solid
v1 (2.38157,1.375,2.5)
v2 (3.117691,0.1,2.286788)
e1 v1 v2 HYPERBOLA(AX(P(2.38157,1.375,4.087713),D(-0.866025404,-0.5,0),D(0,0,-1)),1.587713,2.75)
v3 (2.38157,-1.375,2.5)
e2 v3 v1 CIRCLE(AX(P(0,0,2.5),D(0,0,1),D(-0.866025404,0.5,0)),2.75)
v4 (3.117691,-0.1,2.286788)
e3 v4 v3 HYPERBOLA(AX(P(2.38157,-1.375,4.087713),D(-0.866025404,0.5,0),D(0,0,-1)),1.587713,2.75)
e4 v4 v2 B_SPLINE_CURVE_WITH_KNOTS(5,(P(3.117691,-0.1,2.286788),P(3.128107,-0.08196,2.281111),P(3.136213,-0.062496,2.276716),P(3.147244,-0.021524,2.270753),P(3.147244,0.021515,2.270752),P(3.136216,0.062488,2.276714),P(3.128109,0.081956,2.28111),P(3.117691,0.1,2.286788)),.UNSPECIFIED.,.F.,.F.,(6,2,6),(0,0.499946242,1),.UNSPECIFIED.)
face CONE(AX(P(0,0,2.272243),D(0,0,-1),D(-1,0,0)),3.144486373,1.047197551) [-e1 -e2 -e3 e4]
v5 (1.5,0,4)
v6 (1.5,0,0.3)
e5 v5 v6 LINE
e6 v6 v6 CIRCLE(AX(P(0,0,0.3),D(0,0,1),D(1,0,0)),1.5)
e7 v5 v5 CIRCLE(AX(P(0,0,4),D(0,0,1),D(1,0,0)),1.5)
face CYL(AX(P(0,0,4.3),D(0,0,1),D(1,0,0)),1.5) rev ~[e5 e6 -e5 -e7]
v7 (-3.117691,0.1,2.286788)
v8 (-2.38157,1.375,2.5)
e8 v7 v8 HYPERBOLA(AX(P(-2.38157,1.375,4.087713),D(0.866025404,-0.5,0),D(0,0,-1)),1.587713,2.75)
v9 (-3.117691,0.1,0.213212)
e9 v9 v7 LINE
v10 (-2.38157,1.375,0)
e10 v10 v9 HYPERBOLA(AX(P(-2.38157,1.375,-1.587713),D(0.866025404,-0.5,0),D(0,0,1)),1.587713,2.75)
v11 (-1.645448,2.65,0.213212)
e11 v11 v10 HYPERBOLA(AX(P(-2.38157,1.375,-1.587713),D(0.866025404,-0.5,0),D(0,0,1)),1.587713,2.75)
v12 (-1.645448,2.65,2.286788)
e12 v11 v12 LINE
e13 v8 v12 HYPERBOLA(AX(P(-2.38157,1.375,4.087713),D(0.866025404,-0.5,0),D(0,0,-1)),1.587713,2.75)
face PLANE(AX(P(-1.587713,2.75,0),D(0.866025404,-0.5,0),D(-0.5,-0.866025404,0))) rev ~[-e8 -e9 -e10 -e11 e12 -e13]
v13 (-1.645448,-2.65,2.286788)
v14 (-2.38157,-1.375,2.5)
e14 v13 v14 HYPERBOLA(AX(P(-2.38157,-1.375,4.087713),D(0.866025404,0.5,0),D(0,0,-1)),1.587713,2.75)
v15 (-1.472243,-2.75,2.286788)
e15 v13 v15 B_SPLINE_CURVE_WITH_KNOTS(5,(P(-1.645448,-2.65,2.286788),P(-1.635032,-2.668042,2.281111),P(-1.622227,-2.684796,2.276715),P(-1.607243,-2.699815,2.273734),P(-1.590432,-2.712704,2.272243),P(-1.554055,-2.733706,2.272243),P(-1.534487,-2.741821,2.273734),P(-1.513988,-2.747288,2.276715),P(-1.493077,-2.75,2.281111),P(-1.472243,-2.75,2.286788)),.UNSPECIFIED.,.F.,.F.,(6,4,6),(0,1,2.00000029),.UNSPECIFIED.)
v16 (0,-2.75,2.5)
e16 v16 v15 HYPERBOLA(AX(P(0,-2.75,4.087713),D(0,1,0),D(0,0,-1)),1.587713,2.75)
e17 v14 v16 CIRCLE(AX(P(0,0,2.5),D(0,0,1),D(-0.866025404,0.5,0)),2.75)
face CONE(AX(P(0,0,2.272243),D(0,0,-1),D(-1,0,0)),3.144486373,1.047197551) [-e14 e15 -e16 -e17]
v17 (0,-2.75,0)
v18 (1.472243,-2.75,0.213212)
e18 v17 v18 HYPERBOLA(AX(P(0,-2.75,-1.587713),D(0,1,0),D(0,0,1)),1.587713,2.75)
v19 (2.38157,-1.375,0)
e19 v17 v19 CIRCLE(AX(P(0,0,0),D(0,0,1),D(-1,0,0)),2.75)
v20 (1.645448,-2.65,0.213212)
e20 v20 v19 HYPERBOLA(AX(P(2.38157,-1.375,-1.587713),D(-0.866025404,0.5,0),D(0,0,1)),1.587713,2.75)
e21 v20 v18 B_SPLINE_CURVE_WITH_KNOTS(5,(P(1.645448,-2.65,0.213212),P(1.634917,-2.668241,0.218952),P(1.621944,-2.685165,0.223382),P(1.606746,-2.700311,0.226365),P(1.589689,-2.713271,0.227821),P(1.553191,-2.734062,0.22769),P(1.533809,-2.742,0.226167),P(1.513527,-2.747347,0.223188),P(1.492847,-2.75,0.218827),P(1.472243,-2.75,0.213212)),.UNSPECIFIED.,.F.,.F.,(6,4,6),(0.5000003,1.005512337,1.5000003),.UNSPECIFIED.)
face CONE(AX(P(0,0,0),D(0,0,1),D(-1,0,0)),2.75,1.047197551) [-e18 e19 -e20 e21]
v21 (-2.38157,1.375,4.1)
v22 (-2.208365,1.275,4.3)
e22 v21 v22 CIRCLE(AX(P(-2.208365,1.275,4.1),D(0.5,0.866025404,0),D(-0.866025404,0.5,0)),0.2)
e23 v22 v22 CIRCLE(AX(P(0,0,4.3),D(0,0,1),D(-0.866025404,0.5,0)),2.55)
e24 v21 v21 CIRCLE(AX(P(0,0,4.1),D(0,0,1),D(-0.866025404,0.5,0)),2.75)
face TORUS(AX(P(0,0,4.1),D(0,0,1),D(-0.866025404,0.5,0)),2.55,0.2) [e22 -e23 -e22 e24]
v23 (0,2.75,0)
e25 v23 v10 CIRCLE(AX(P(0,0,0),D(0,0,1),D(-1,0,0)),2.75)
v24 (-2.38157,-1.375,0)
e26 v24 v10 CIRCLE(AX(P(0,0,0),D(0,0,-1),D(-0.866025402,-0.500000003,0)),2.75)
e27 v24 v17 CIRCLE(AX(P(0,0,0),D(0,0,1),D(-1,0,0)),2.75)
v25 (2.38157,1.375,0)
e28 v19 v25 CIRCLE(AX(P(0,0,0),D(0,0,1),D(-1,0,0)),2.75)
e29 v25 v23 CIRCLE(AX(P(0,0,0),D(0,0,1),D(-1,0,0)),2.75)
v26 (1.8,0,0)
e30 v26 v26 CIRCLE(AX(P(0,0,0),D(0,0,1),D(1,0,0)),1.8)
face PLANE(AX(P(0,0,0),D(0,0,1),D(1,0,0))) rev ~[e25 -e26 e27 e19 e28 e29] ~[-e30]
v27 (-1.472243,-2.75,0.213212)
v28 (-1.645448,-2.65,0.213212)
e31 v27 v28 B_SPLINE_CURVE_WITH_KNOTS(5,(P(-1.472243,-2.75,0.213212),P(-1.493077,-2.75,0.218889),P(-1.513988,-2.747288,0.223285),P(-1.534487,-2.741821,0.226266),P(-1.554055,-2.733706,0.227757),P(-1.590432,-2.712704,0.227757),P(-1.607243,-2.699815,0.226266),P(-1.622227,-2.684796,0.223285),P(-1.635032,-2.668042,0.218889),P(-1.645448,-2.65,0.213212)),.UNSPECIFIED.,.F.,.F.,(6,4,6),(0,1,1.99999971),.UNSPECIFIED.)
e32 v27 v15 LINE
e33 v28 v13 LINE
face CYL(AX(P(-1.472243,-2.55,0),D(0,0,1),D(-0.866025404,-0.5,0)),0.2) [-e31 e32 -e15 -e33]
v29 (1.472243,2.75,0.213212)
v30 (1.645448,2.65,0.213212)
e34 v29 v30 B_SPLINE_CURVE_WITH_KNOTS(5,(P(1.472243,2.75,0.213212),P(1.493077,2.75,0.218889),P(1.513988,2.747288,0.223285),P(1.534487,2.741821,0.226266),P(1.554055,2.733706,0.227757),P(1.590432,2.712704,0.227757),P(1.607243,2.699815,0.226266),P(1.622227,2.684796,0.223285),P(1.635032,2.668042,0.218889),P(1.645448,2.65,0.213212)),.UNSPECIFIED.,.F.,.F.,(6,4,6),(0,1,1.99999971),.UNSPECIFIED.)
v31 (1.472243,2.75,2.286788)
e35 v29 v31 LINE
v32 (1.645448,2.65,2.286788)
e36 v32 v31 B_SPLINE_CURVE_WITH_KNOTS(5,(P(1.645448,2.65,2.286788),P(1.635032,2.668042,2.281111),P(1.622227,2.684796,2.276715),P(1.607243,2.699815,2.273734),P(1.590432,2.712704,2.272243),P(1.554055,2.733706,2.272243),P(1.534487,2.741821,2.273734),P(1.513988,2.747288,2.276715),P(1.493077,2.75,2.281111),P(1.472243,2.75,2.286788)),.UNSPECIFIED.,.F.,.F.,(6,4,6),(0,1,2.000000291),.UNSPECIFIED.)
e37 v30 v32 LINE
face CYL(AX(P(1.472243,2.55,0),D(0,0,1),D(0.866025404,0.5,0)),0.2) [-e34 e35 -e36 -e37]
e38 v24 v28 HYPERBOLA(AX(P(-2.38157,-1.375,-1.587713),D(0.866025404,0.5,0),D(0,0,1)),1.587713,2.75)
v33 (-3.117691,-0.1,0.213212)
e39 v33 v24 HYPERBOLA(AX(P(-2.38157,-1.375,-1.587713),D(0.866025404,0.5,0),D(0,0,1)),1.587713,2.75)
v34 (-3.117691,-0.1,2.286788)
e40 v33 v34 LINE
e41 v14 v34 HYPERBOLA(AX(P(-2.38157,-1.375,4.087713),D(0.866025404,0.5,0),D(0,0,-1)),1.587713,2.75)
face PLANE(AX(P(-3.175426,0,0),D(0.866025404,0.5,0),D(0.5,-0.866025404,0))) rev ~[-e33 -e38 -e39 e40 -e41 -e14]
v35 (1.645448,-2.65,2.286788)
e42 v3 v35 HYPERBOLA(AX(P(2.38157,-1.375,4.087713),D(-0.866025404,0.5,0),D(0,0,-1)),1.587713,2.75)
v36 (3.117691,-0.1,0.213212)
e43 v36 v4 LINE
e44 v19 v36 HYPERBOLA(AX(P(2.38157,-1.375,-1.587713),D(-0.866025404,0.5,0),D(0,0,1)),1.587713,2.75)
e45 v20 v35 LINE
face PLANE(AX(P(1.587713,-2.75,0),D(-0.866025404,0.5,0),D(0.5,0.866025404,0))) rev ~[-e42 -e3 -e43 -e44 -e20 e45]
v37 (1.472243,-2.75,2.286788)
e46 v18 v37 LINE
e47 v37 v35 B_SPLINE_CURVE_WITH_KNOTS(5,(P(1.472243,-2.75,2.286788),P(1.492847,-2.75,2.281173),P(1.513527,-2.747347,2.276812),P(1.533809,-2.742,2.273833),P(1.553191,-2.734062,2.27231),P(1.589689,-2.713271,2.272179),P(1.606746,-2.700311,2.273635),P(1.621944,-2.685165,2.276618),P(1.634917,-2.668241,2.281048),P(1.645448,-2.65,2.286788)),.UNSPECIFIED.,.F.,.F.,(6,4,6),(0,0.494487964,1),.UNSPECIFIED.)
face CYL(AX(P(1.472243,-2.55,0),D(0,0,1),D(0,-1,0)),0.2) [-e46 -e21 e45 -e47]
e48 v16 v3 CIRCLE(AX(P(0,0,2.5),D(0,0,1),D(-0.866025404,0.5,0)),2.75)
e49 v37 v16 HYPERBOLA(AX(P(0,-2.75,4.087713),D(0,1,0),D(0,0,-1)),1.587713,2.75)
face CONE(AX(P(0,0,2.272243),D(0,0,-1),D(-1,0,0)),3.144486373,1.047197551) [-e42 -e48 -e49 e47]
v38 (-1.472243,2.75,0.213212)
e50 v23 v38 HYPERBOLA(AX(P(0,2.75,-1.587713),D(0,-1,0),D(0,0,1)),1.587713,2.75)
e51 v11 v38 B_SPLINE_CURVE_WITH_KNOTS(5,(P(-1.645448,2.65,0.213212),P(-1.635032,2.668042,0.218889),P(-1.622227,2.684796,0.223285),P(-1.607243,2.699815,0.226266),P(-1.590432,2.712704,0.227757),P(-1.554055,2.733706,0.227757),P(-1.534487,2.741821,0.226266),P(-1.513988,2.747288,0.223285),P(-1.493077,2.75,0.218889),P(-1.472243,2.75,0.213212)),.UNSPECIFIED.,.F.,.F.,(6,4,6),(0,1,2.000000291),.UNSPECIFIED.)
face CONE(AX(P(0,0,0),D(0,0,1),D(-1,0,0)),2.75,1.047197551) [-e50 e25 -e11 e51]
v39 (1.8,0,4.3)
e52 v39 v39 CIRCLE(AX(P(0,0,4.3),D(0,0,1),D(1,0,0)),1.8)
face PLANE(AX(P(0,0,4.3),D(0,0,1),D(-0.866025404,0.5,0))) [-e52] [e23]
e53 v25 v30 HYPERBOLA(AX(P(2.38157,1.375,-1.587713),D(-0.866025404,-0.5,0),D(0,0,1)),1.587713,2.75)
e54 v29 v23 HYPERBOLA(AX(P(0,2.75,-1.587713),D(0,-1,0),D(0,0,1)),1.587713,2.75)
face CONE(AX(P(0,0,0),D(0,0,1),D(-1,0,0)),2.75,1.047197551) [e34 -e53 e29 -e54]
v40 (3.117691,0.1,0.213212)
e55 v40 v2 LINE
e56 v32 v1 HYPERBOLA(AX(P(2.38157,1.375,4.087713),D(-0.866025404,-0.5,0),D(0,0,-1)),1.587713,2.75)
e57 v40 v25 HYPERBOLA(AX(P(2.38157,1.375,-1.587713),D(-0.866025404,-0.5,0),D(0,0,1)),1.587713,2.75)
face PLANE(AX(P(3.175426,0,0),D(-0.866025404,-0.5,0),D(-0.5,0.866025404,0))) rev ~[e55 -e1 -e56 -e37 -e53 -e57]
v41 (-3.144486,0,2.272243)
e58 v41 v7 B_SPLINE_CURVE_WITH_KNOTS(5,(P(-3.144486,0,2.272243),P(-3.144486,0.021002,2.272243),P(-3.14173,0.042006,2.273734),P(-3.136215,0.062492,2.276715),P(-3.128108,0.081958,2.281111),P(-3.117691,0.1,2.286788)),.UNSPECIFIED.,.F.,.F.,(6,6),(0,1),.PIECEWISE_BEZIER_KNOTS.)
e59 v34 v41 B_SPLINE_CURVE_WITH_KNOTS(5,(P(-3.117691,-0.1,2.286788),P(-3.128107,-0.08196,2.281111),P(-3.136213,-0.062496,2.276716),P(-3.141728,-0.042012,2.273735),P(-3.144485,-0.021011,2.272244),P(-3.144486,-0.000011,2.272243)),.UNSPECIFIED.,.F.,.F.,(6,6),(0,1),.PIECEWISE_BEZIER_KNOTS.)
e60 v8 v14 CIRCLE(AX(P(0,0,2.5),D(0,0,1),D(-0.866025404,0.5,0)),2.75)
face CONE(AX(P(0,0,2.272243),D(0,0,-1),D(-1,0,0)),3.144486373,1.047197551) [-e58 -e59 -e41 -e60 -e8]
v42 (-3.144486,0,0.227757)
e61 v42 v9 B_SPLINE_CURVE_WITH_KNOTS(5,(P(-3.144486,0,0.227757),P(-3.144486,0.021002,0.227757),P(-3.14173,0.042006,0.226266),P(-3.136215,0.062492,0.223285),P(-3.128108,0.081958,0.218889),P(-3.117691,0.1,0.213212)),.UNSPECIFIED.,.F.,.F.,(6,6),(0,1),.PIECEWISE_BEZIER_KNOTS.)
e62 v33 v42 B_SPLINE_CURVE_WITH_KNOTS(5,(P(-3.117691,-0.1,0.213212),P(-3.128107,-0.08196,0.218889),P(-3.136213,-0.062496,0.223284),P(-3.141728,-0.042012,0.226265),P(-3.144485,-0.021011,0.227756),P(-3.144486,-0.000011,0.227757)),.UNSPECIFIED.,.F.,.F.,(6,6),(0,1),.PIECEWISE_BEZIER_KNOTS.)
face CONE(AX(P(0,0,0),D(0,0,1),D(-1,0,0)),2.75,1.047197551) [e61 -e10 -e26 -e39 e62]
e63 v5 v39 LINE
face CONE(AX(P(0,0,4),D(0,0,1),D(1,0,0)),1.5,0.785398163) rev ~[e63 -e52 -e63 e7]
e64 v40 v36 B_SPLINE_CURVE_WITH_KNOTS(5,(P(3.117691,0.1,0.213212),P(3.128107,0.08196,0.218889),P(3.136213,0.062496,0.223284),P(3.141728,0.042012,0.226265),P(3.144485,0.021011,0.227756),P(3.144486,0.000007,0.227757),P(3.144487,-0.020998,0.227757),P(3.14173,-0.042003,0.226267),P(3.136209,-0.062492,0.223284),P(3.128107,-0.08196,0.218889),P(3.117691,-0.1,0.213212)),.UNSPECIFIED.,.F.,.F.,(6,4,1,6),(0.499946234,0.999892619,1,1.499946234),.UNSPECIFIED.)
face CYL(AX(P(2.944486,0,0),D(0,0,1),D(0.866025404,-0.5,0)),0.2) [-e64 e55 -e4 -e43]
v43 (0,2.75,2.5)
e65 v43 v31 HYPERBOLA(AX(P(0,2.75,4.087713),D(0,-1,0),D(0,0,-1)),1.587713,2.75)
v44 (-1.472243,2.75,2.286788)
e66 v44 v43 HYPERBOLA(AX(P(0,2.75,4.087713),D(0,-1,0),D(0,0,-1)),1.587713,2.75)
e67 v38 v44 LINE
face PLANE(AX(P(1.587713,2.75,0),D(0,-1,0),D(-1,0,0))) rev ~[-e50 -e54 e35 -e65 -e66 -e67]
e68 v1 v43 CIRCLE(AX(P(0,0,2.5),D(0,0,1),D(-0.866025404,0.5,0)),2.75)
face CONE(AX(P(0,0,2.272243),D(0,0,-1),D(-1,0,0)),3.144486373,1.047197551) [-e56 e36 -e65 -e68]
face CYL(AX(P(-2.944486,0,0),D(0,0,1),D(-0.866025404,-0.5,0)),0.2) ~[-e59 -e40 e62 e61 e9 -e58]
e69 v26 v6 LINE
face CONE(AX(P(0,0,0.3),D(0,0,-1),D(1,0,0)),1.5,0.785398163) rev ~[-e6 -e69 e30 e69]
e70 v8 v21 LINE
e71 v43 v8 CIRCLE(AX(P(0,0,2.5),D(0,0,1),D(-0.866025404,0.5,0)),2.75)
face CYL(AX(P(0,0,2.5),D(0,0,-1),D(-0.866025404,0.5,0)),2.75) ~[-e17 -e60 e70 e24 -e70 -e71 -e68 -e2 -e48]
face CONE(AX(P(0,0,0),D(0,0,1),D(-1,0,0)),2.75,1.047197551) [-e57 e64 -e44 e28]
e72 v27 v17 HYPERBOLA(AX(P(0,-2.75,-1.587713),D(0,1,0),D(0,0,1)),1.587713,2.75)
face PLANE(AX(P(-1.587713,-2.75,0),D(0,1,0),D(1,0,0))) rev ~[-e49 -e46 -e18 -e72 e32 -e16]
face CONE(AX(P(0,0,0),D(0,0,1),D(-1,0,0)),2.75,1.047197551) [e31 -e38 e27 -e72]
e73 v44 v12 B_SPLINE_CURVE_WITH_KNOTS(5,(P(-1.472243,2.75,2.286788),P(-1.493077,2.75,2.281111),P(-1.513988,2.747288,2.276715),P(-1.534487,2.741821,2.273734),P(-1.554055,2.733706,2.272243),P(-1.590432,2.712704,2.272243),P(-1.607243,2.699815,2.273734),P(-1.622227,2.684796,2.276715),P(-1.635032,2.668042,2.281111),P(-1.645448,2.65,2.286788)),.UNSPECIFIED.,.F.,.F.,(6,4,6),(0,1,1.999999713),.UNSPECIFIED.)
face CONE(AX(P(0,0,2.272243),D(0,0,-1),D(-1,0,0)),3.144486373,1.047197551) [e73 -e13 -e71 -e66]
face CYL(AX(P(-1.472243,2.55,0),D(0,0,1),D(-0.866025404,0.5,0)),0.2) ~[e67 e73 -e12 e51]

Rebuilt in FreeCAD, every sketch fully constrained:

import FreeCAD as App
import Part
import Sketcher
from FreeCAD import Vector
Q = App.Units.Quantity


def edges_at(feature, points):
    """Names of the edges that pass closest to the given points."""
    edges = feature.Shape.Edges
    near = lambda p: min(range(len(edges)), key=lambda i: edges[i].distToShape(Part.Vertex(*p))[0])
    return sorted({f"Edge{near(p) + 1}" for p in points})

doc = App.newDocument("Part")
params = doc.addObject("Spreadsheet::Sheet", "Params")
for row, (alias, value) in enumerate([
    ("pad1_length", "2.5 mm"),
    ("sketch2_diameter", "5.5 mm"),
    ("pad2_length", "1.8 mm"),
    ("sketch3_diameter", "3 mm"),
    ("fillet_radius", "0.2 mm"),
    ("chamfer_size", "0.3 mm"),
    ("chamfer2_size", "0.3 mm"),
    ("groove_angle", "360 deg"),
    ("fillet2_radius", "0.2 mm"),
], start=1):
    params.set(f"A{row}", alias)
    params.set(f"B{row}", "=" + value)
    params.setAlias(f"B{row}", alias)

body = doc.addObject("PartDesign::Body", "Body")

sketch1 = body.newObject("Sketcher::SketchObject", "Sketch")
sketch1.AttachmentSupport = (doc.getObject("XY_Plane"), [""])
sketch1.MapMode = "FlatFace"
sketch1.addGeometry(Part.LineSegment(Vector(3.2, 0, 0), Vector(1.6, 2.8, 0)), False)
sketch1.addGeometry(Part.LineSegment(Vector(1.6, 2.8, 0), Vector(-1.6, 2.8, 0)), False)
sketch1.addGeometry(Part.LineSegment(Vector(-1.6, 2.8, 0), Vector(-3.2, 0, 0)), False)
sketch1.addGeometry(Part.LineSegment(Vector(-3.2, 0, 0), Vector(-1.6, -2.8, 0)), False)
sketch1.addGeometry(Part.LineSegment(Vector(-1.6, -2.8, 0), Vector(1.6, -2.8, 0)), False)
sketch1.addGeometry(Part.LineSegment(Vector(1.6, -2.8, 0), Vector(3.2, 0, 0)), False)
sketch1.addConstraint(Sketcher.Constraint("Coincident", 0, 2, 1, 1))
sketch1.addConstraint(Sketcher.Constraint("Coincident", 1, 2, 2, 1))
sketch1.addConstraint(Sketcher.Constraint("Coincident", 2, 2, 3, 1))
sketch1.addConstraint(Sketcher.Constraint("Coincident", 3, 2, 4, 1))
sketch1.addConstraint(Sketcher.Constraint("Coincident", 4, 2, 5, 1))
sketch1.addConstraint(Sketcher.Constraint("Coincident", 5, 2, 0, 1))
sketch1.addConstraint(Sketcher.Constraint("Horizontal", 1))
sketch1.addConstraint(Sketcher.Constraint("Horizontal", 4))
sketch1.addConstraint(Sketcher.Constraint("Symmetric", 0, 2, 3, 2, -1, 1))
sketch1.addConstraint(Sketcher.Constraint("Symmetric", 2, 2, 5, 2, -1, 1))
sketch1.addConstraint(Sketcher.Constraint("PointOnObject", 2, 2, -1))
sketch1.addConstraint(Sketcher.Constraint("Parallel", 2, 5))
sketch1.addConstraint(Sketcher.Constraint("Vertical", 1, 2, 3, 2))
sketch1.addConstraint(Sketcher.Constraint("Angle", 0, Q("120 deg")))
sketch1.addConstraint(Sketcher.Constraint("DistanceY", 3, 2, 1, 2, Q("5.5 mm")))
sketch1.addConstraint(Sketcher.Constraint("DistanceX", 1, 2, 1, 1, Q("3.175426 mm")))
pad1 = body.newObject("PartDesign::Pad", "Pad")
pad1.Profile = sketch1
pad1.setExpression("Length", "Params.pad1_length")

sketch2 = body.newObject("Sketcher::SketchObject", "Sketch001")
sketch2.AttachmentSupport = (doc.getObject("XY_Plane"), [""])
sketch2.MapMode = "FlatFace"
sketch2.AttachmentOffset = App.Placement(Vector(0, 0, 2.5), App.Rotation())
sketch2.addGeometry(Part.Circle(Vector(0, 0, 0), Vector(0, 0, 1), 2.8), False)
sketch2.addConstraint(Sketcher.Constraint("Coincident", 0, 3, -1, 1))
sketch2.addConstraint(Sketcher.Constraint("Diameter", 0, Q("5.5 mm")))
sketch2.setExpression("Constraints[1]", "Params.sketch2_diameter")
pad2 = body.newObject("PartDesign::Pad", "Pad001")
pad2.Profile = sketch2
pad2.setExpression("Length", "Params.pad2_length")

sketch3 = body.newObject("Sketcher::SketchObject", "Sketch002")
sketch3.AttachmentSupport = (doc.getObject("XY_Plane"), [""])
sketch3.MapMode = "FlatFace"
sketch3.AttachmentOffset = App.Placement(Vector(0, 0, 4.3), App.Rotation())
sketch3.addGeometry(Part.Circle(Vector(0, 0, 0), Vector(0, 0, 1), 1.5), False)
sketch3.addConstraint(Sketcher.Constraint("Coincident", 0, 3, -1, 1))
sketch3.addConstraint(Sketcher.Constraint("Diameter", 0, Q("3 mm")))
sketch3.setExpression("Constraints[1]", "Params.sketch3_diameter")
pocket1 = body.newObject("PartDesign::Pocket", "Pocket")
pocket1.Profile = sketch3
pocket1.Type = "ThroughAll"
doc.recompute()

fillet = body.newObject("PartDesign::Fillet", "Fillet")
fillet.Base = (pocket1, edges_at(pocket1, [
    (1.588, -2.75, 1.25),
    (-1.588, -2.75, 1.25),
    (-3.175, 0, 1.25),
    (-1.588, 2.75, 1.25),
    (1.588, 2.75, 1.25),
    (3.175, 0, 1.25),
]))
fillet.setExpression("Radius", "Params.fillet_radius")
doc.recompute()

chamfer = body.newObject("PartDesign::Chamfer", "Chamfer")
chamfer.Base = (fillet, edges_at(fillet, [(-1.5, 0, 0)]))
chamfer.setExpression("Size", "Params.chamfer_size")
doc.recompute()

chamfer2 = body.newObject("PartDesign::Chamfer", "Chamfer001")
chamfer2.Base = (chamfer, edges_at(chamfer, [(-1.5, 0, 4.3)]))
chamfer2.setExpression("Size", "Params.chamfer2_size")

sketch4 = body.newObject("Sketcher::SketchObject", "Sketch003")
sketch4.AttachmentSupport = (doc.getObject("XZ_Plane"), [""])
sketch4.MapMode = "FlatFace"
sketch4.addGeometry(Part.LineSegment(Vector(-3.14, 0.23, 0), Vector(-2.75, 0, 0)), False)
sketch4.addGeometry(Part.LineSegment(Vector(-2.75, 0, 0), Vector(-3.14, 0, 0)), False)
sketch4.addGeometry(Part.LineSegment(Vector(-3.14, 0, 0), Vector(-3.14, 0.23, 0)), False)
sketch4.addGeometry(Part.LineSegment(Vector(-3.14, 2.27, 0), Vector(-3.14, 2.5, 0)), False)
sketch4.addGeometry(Part.LineSegment(Vector(-3.14, 2.5, 0), Vector(-2.75, 2.5, 0)), False)
sketch4.addGeometry(Part.LineSegment(Vector(-2.75, 2.5, 0), Vector(-3.14, 2.27, 0)), False)
sketch4.addConstraint(Sketcher.Constraint("Coincident", 0, 2, 1, 1))
sketch4.addConstraint(Sketcher.Constraint("Coincident", 1, 2, 2, 1))
sketch4.addConstraint(Sketcher.Constraint("Coincident", 2, 2, 0, 1))
sketch4.addConstraint(Sketcher.Constraint("Coincident", 3, 2, 4, 1))
sketch4.addConstraint(Sketcher.Constraint("Coincident", 4, 2, 5, 1))
sketch4.addConstraint(Sketcher.Constraint("Coincident", 5, 2, 3, 1))
sketch4.addConstraint(Sketcher.Constraint("Horizontal", 1))
sketch4.addConstraint(Sketcher.Constraint("Vertical", 2))
sketch4.addConstraint(Sketcher.Constraint("Vertical", 3))
sketch4.addConstraint(Sketcher.Constraint("Horizontal", 4))
sketch4.addConstraint(Sketcher.Constraint("PointOnObject", 0, 2, -1))
sketch4.addConstraint(Sketcher.Constraint("Vertical", 2, 2, 3, 2))
sketch4.addConstraint(Sketcher.Constraint("Vertical", 0, 2, 4, 2))
sketch4.addConstraint(Sketcher.Constraint("Equal", 2, 3))
sketch4.addConstraint(Sketcher.Constraint("Angle", 0, Q("-30 deg")))
sketch4.addConstraint(Sketcher.Constraint("DistanceY", -1, 1, 3, 2, Q("2.5 mm")))
sketch4.addConstraint(Sketcher.Constraint("DistanceX", 0, 2, -1, 1, Q("2.75 mm")))
sketch4.addConstraint(Sketcher.Constraint("DistanceX", 1, 2, 1, 1, Q("0.394486 mm")))
groove = body.newObject("PartDesign::Groove", "Groove")
groove.Profile = sketch4
groove.ReferenceAxis = (sketch4, ["V_Axis"])
groove.setExpression("Angle", "Params.groove_angle")
doc.recompute()

fillet2 = body.newObject("PartDesign::Fillet", "Fillet001")
fillet2.Base = (groove, edges_at(groove, [(2.382, -1.375, 4.3)]))
fillet2.setExpression("Radius", "Params.fillet2_radius")

doc.recompute()
